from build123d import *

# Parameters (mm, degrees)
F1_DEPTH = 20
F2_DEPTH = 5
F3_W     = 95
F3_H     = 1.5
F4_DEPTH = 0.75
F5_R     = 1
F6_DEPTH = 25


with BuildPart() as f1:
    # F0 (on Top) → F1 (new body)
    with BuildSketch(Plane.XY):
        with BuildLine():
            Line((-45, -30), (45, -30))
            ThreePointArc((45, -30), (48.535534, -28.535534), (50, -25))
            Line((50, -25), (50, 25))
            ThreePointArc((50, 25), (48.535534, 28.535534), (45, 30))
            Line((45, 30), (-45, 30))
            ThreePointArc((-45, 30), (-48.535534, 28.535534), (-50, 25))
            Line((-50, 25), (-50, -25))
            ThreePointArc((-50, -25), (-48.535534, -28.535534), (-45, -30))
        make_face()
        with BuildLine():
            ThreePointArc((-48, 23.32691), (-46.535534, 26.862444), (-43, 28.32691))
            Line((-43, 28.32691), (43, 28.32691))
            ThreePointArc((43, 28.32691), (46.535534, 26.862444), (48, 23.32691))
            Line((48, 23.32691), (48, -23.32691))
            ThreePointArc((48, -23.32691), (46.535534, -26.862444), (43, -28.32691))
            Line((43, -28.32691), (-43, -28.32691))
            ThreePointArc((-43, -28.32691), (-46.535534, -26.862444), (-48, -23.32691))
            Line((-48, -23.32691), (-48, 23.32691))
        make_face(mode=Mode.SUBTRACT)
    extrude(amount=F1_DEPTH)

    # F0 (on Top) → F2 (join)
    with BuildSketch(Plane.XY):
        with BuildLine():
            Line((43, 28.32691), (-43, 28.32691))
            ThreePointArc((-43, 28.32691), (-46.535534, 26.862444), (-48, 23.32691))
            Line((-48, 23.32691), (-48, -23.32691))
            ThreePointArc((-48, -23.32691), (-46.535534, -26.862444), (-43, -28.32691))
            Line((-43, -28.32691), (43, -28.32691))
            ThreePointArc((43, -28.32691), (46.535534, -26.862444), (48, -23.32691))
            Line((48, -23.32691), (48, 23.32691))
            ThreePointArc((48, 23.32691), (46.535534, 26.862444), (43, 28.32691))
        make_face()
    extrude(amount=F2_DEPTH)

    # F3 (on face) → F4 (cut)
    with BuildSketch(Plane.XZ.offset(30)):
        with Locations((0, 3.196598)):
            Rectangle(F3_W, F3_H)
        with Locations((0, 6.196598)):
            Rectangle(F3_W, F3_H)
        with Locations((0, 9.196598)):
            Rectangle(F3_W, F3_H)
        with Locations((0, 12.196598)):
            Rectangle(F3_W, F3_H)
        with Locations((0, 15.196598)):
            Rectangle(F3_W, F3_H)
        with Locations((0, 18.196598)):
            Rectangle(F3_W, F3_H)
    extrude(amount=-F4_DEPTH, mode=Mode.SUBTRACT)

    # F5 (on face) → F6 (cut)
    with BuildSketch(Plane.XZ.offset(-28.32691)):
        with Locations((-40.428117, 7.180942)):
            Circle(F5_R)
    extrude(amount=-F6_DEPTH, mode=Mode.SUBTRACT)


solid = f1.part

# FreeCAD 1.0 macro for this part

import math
import FreeCAD as App
import Part
import Sketcher

V = App.Vector
Q = App.Units.Quantity


def add_polygon(sketch, points):
    """Adds a closed chain of lines whose ends are joined by coincident constraints."""
    first, n = sketch.GeometryCount, len(points)
    for a, b in zip(points, points[1:] + points[:1]):
        sketch.addGeometry(Part.LineSegment(App.Vector(*a, 0), App.Vector(*b, 0)), False)
    for i in range(n):
        sketch.addConstraint(Sketcher.Constraint("Coincident", first + i, 2, first + (i + 1) % n, 1))

doc = App.newDocument("Part")
body = doc.addObject("PartDesign::Body", "Body")

# Sketch on XY plane
sketch1 = body.newObject("Sketcher::SketchObject", "Sketch")
sketch1.AttachmentSupport = (doc.getObject("XY_Plane"), [""])
sketch1.MapMode = "FlatFace"
sketch1.addGeometry(Part.LineSegment(V(-45, -30, 0), V(45, -30, 0)), False)
sketch1.addGeometry(Part.ArcOfCircle(Part.Circle(V(45, -25, 0), V(0, 0, 1), 5), math.radians(-90), math.radians(0)), False)
sketch1.addGeometry(Part.LineSegment(V(50, -25, 0), V(50, 25, 0)), False)
sketch1.addGeometry(Part.ArcOfCircle(Part.Circle(V(45, 25, 0), V(0, 0, 1), 5), math.radians(0), math.radians(90)), False)
sketch1.addGeometry(Part.LineSegment(V(45, 30, 0), V(-45, 30, 0)), False)
sketch1.addGeometry(Part.ArcOfCircle(Part.Circle(V(-45, 25, 0), V(0, 0, 1), 5), math.radians(90), math.radians(180)), False)
sketch1.addGeometry(Part.LineSegment(V(-50, 25, 0), V(-50, -25, 0)), False)
sketch1.addGeometry(Part.ArcOfCircle(Part.Circle(V(-45, -25, 0), V(0, 0, 1), 5), math.radians(180), math.radians(270)), False)
sketch1.addGeometry(Part.LineSegment(V(-48, -23.3, 0), V(-48, 23.3, 0)), False)
sketch1.addGeometry(Part.ArcOfCircle(Part.Circle(V(-43, 23.3, 0), V(0, 0, 1), 5), math.radians(90), math.radians(180)), False)
sketch1.addGeometry(Part.LineSegment(V(-43, 28.3, 0), V(43, 28.3, 0)), False)
sketch1.addGeometry(Part.ArcOfCircle(Part.Circle(V(43, 23.3, 0), V(0, 0, 1), 5), math.radians(0), math.radians(90)), False)
sketch1.addGeometry(Part.LineSegment(V(48, 23.3, 0), V(48, -23.3, 0)), False)
sketch1.addGeometry(Part.ArcOfCircle(Part.Circle(V(43, -23.3, 0), V(0, 0, 1), 5), math.radians(-90), math.radians(0)), False)
sketch1.addGeometry(Part.LineSegment(V(43, -28.3, 0), V(-43, -28.3, 0)), False)
sketch1.addGeometry(Part.ArcOfCircle(Part.Circle(V(-43, -23.3, 0), V(0, 0, 1), 5), math.radians(180), math.radians(270)), False)
sketch1.addConstraint(Sketcher.Constraint("Tangent", 0, 2, 1, 1))
sketch1.addConstraint(Sketcher.Constraint("Tangent", 1, 2, 2, 1))
sketch1.addConstraint(Sketcher.Constraint("Tangent", 2, 2, 3, 1))
sketch1.addConstraint(Sketcher.Constraint("Tangent", 3, 2, 4, 1))
sketch1.addConstraint(Sketcher.Constraint("Tangent", 4, 2, 5, 1))
sketch1.addConstraint(Sketcher.Constraint("Tangent", 5, 2, 6, 1))
sketch1.addConstraint(Sketcher.Constraint("Tangent", 6, 2, 7, 1))
sketch1.addConstraint(Sketcher.Constraint("Tangent", 7, 2, 0, 1))
sketch1.addConstraint(Sketcher.Constraint("Tangent", 8, 2, 9, 2))
sketch1.addConstraint(Sketcher.Constraint("Tangent", 9, 1, 10, 1))
sketch1.addConstraint(Sketcher.Constraint("Tangent", 10, 2, 11, 2))
sketch1.addConstraint(Sketcher.Constraint("Tangent", 11, 1, 12, 1))
sketch1.addConstraint(Sketcher.Constraint("Tangent", 12, 2, 13, 2))
sketch1.addConstraint(Sketcher.Constraint("Tangent", 13, 1, 14, 1))
sketch1.addConstraint(Sketcher.Constraint("Tangent", 14, 2, 15, 2))
sketch1.addConstraint(Sketcher.Constraint("Tangent", 15, 1, 8, 1))
sketch1.addConstraint(Sketcher.Constraint("Horizontal", 0))
sketch1.addConstraint(Sketcher.Constraint("Vertical", 2))
sketch1.addConstraint(Sketcher.Constraint("Horizontal", 4))
sketch1.addConstraint(Sketcher.Constraint("Vertical", 6))
sketch1.addConstraint(Sketcher.Constraint("Vertical", 8))
sketch1.addConstraint(Sketcher.Constraint("Horizontal", 10))
sketch1.addConstraint(Sketcher.Constraint("Vertical", 12))
sketch1.addConstraint(Sketcher.Constraint("Horizontal", 14))
sketch1.addConstraint(Sketcher.Constraint("Equal", 1, 3))
sketch1.addConstraint(Sketcher.Constraint("Equal", 3, 5))
sketch1.addConstraint(Sketcher.Constraint("Equal", 5, 7))
sketch1.addConstraint(Sketcher.Constraint("Equal", 7, 9))
sketch1.addConstraint(Sketcher.Constraint("Equal", 9, 11))
sketch1.addConstraint(Sketcher.Constraint("Equal", 11, 13))
sketch1.addConstraint(Sketcher.Constraint("Equal", 13, 15))
sketch1.addConstraint(Sketcher.Constraint("Symmetric", 1, 3, 5, 3, -1, 1))
sketch1.addConstraint(Sketcher.Constraint("Symmetric", 9, 3, 13, 3, -1, 1))
sketch1.addConstraint(Sketcher.Constraint("Radius", 1, Q("5 mm")))
sketch1.addConstraint(Sketcher.Constraint("DistanceX", 0, 1, 0, 2, Q("90 mm")))
sketch1.addConstraint(Sketcher.Constraint("DistanceX", 10, 1, 10, 2, Q("86 mm")))
sketch1.addConstraint(Sketcher.Constraint("DistanceY", 2, 1, 2, 2, Q("50 mm")))
sketch1.addConstraint(Sketcher.Constraint("DistanceY", 8, 1, 8, 2, Q("46.65382 mm")))
pad1 = body.newObject("PartDesign::Pad", "Pad")
pad1.Profile = sketch1
pad1.Length = 20

# Sketch on XY plane
sketch2 = body.newObject("Sketcher::SketchObject", "Sketch001")
sketch2.AttachmentSupport = (doc.getObject("XY_Plane"), [""])
sketch2.MapMode = "FlatFace"
sketch2.addGeometry(Part.LineSegment(V(43, 28.3, 0), V(-43, 28.3, 0)), False)
sketch2.addGeometry(Part.ArcOfCircle(Part.Circle(V(-43, 23.3, 0), V(0, 0, 1), 5), math.radians(90), math.radians(180)), False)
sketch2.addGeometry(Part.LineSegment(V(-48, 23.3, 0), V(-48, -23.3, 0)), False)
sketch2.addGeometry(Part.ArcOfCircle(Part.Circle(V(-43, -23.3, 0), V(0, 0, 1), 5), math.radians(180), math.radians(270)), False)
sketch2.addGeometry(Part.LineSegment(V(-43, -28.3, 0), V(43, -28.3, 0)), False)
sketch2.addGeometry(Part.ArcOfCircle(Part.Circle(V(43, -23.3, 0), V(0, 0, 1), 5), math.radians(-90), math.radians(0)), False)
sketch2.addGeometry(Part.LineSegment(V(48, -23.3, 0), V(48, 23.3, 0)), False)
sketch2.addGeometry(Part.ArcOfCircle(Part.Circle(V(43, 23.3, 0), V(0, 0, 1), 5), math.radians(0), math.radians(90)), False)
sketch2.addConstraint(Sketcher.Constraint("Tangent", 0, 2, 1, 1))
sketch2.addConstraint(Sketcher.Constraint("Tangent", 1, 2, 2, 1))
sketch2.addConstraint(Sketcher.Constraint("Tangent", 2, 2, 3, 1))
sketch2.addConstraint(Sketcher.Constraint("Tangent", 3, 2, 4, 1))
sketch2.addConstraint(Sketcher.Constraint("Tangent", 4, 2, 5, 1))
sketch2.addConstraint(Sketcher.Constraint("Tangent", 5, 2, 6, 1))
sketch2.addConstraint(Sketcher.Constraint("Tangent", 6, 2, 7, 1))
sketch2.addConstraint(Sketcher.Constraint("Tangent", 7, 2, 0, 1))
sketch2.addConstraint(Sketcher.Constraint("Horizontal", 0))
sketch2.addConstraint(Sketcher.Constraint("Vertical", 2))
sketch2.addConstraint(Sketcher.Constraint("Horizontal", 4))
sketch2.addConstraint(Sketcher.Constraint("Vertical", 6))
sketch2.addConstraint(Sketcher.Constraint("Equal", 1, 3))
sketch2.addConstraint(Sketcher.Constraint("Equal", 3, 5))
sketch2.addConstraint(Sketcher.Constraint("Equal", 5, 7))
sketch2.addConstraint(Sketcher.Constraint("Symmetric", 1, 3, 5, 3, -1, 1))
sketch2.addConstraint(Sketcher.Constraint("Radius", 1, Q("5 mm")))
sketch2.addConstraint(Sketcher.Constraint("DistanceX", 0, 2, 0, 1, Q("86 mm")))
sketch2.addConstraint(Sketcher.Constraint("DistanceY", 2, 2, 2, 1, Q("46.65382 mm")))
pad2 = body.newObject("PartDesign::Pad", "Pad001")
pad2.Profile = sketch2
pad2.Length = 5

# Sketch on XZ plane
sketch3 = body.newObject("Sketcher::SketchObject", "Sketch002")
sketch3.AttachmentSupport = (doc.getObject("XZ_Plane"), [""])
sketch3.MapMode = "FlatFace"
sketch3.AttachmentOffset = App.Placement(V(0, 0, 30), App.Rotation())
add_polygon(sketch3, [(-47.5, 3.9), (-47.5, 2.4), (47.5, 2.4), (47.5, 3.9)])  # lines 0-3
add_polygon(sketch3, [(-47.5, 6.9), (-47.5, 5.4), (47.5, 5.4), (47.5, 6.9)])  # lines 4-7
add_polygon(sketch3, [(-47.5, 9.9), (-47.5, 8.4), (47.5, 8.4), (47.5, 9.9)])  # lines 8-11
add_polygon(sketch3, [(-47.5, 12.9), (-47.5, 11.4), (47.5, 11.4), (47.5, 12.9)])  # lines 12-15
add_polygon(sketch3, [(-47.5, 15.9), (-47.5, 14.4), (47.5, 14.4), (47.5, 15.9)])  # lines 16-19
add_polygon(sketch3, [(-47.5, 18.9), (-47.5, 17.4), (47.5, 17.4), (47.5, 18.9)])  # lines 20-23
sketch3.addConstraint(Sketcher.Constraint("Vertical", 0))
sketch3.addConstraint(Sketcher.Constraint("Horizontal", 1))
sketch3.addConstraint(Sketcher.Constraint("Vertical", 2))
sketch3.addConstraint(Sketcher.Constraint("Horizontal", 3))
sketch3.addConstraint(Sketcher.Constraint("Vertical", 4))
sketch3.addConstraint(Sketcher.Constraint("Horizontal", 5))
sketch3.addConstraint(Sketcher.Constraint("Vertical", 6))
sketch3.addConstraint(Sketcher.Constraint("Horizontal", 7))
sketch3.addConstraint(Sketcher.Constraint("Vertical", 8))
sketch3.addConstraint(Sketcher.Constraint("Horizontal", 9))
sketch3.addConstraint(Sketcher.Constraint("Vertical", 10))
sketch3.addConstraint(Sketcher.Constraint("Horizontal", 11))
sketch3.addConstraint(Sketcher.Constraint("Vertical", 12))
sketch3.addConstraint(Sketcher.Constraint("Horizontal", 13))
sketch3.addConstraint(Sketcher.Constraint("Vertical", 14))
sketch3.addConstraint(Sketcher.Constraint("Horizontal", 15))
sketch3.addConstraint(Sketcher.Constraint("Vertical", 16))
sketch3.addConstraint(Sketcher.Constraint("Horizontal", 17))
sketch3.addConstraint(Sketcher.Constraint("Vertical", 18))
sketch3.addConstraint(Sketcher.Constraint("Horizontal", 19))
sketch3.addConstraint(Sketcher.Constraint("Vertical", 20))
sketch3.addConstraint(Sketcher.Constraint("Horizontal", 21))
sketch3.addConstraint(Sketcher.Constraint("Vertical", 22))
sketch3.addConstraint(Sketcher.Constraint("Horizontal", 23))
sketch3.addConstraint(Sketcher.Constraint("Vertical", 3, 2, 4, 2))
sketch3.addConstraint(Sketcher.Constraint("Vertical", 2, 2, 5, 2))
sketch3.addConstraint(Sketcher.Constraint("Vertical", 7, 2, 8, 2))
sketch3.addConstraint(Sketcher.Constraint("Vertical", 6, 2, 9, 2))
sketch3.addConstraint(Sketcher.Constraint("Vertical", 11, 2, 12, 2))
sketch3.addConstraint(Sketcher.Constraint("Vertical", 10, 2, 13, 2))
sketch3.addConstraint(Sketcher.Constraint("Vertical", 15, 2, 16, 2))
sketch3.addConstraint(Sketcher.Constraint("Vertical", 14, 2, 17, 2))
sketch3.addConstraint(Sketcher.Constraint("Vertical", 19, 2, 20, 2))
sketch3.addConstraint(Sketcher.Constraint("Vertical", 18, 2, 21, 2))
sketch3.addConstraint(Sketcher.Constraint("Equal", 2, 4))
sketch3.addConstraint(Sketcher.Constraint("Equal", 6, 8))
sketch3.addConstraint(Sketcher.Constraint("Equal", 10, 12))
sketch3.addConstraint(Sketcher.Constraint("Equal", 14, 16))
sketch3.addConstraint(Sketcher.Constraint("Equal", 18, 20))
sketch3.addConstraint(Sketcher.Constraint("DistanceX", 1, 1, 1, 2, Q("95 mm")))
sketch3.addConstraint(Sketcher.Constraint("DistanceY", 0, 2, 0, 1, Q("1.5 mm")))
sketch3.addConstraint(Sketcher.Constraint("DistanceY", 0, 2, 4, 2, Q("3 mm")))
sketch3.addConstraint(Sketcher.Constraint("DistanceY", 4, 2, 8, 2, Q("3 mm")))
sketch3.addConstraint(Sketcher.Constraint("DistanceY", 8, 2, 12, 2, Q("3 mm")))
sketch3.addConstraint(Sketcher.Constraint("DistanceY", 12, 2, 16, 2, Q("3 mm")))
sketch3.addConstraint(Sketcher.Constraint("DistanceY", 16, 2, 20, 2, Q("3 mm")))
sketch3.addConstraint(Sketcher.Constraint("DistanceX", 0, 2, -1, 1, Q("47.5 mm")))
sketch3.addConstraint(Sketcher.Constraint("DistanceY", -1, 1, 20, 2, Q("17.446598 mm")))
pocket1 = body.newObject("PartDesign::Pocket", "Pocket")
pocket1.Profile = sketch3
pocket1.Length = 0.75

# Sketch on XZ plane
sketch4 = body.newObject("Sketcher::SketchObject", "Sketch003")
sketch4.AttachmentSupport = (doc.getObject("XZ_Plane"), [""])
sketch4.MapMode = "FlatFace"
sketch4.AttachmentOffset = App.Placement(V(0, 0, -28.32691), App.Rotation())
sketch4.addGeometry(Part.Circle(V(-40.4, 7.2, 0), V(0, 0, 1), 1), False)
sketch4.addConstraint(Sketcher.Constraint("Diameter", 0, Q("2 mm")))
sketch4.addConstraint(Sketcher.Constraint("DistanceX", 0, 3, -1, 1, Q("40.428117 mm")))
sketch4.addConstraint(Sketcher.Constraint("DistanceY", -1, 1, 0, 3, Q("7.180942 mm")))
pocket2 = body.newObject("PartDesign::Pocket", "Pocket001")
pocket2.Profile = sketch4
pocket2.Length = 25

doc.recompute()
